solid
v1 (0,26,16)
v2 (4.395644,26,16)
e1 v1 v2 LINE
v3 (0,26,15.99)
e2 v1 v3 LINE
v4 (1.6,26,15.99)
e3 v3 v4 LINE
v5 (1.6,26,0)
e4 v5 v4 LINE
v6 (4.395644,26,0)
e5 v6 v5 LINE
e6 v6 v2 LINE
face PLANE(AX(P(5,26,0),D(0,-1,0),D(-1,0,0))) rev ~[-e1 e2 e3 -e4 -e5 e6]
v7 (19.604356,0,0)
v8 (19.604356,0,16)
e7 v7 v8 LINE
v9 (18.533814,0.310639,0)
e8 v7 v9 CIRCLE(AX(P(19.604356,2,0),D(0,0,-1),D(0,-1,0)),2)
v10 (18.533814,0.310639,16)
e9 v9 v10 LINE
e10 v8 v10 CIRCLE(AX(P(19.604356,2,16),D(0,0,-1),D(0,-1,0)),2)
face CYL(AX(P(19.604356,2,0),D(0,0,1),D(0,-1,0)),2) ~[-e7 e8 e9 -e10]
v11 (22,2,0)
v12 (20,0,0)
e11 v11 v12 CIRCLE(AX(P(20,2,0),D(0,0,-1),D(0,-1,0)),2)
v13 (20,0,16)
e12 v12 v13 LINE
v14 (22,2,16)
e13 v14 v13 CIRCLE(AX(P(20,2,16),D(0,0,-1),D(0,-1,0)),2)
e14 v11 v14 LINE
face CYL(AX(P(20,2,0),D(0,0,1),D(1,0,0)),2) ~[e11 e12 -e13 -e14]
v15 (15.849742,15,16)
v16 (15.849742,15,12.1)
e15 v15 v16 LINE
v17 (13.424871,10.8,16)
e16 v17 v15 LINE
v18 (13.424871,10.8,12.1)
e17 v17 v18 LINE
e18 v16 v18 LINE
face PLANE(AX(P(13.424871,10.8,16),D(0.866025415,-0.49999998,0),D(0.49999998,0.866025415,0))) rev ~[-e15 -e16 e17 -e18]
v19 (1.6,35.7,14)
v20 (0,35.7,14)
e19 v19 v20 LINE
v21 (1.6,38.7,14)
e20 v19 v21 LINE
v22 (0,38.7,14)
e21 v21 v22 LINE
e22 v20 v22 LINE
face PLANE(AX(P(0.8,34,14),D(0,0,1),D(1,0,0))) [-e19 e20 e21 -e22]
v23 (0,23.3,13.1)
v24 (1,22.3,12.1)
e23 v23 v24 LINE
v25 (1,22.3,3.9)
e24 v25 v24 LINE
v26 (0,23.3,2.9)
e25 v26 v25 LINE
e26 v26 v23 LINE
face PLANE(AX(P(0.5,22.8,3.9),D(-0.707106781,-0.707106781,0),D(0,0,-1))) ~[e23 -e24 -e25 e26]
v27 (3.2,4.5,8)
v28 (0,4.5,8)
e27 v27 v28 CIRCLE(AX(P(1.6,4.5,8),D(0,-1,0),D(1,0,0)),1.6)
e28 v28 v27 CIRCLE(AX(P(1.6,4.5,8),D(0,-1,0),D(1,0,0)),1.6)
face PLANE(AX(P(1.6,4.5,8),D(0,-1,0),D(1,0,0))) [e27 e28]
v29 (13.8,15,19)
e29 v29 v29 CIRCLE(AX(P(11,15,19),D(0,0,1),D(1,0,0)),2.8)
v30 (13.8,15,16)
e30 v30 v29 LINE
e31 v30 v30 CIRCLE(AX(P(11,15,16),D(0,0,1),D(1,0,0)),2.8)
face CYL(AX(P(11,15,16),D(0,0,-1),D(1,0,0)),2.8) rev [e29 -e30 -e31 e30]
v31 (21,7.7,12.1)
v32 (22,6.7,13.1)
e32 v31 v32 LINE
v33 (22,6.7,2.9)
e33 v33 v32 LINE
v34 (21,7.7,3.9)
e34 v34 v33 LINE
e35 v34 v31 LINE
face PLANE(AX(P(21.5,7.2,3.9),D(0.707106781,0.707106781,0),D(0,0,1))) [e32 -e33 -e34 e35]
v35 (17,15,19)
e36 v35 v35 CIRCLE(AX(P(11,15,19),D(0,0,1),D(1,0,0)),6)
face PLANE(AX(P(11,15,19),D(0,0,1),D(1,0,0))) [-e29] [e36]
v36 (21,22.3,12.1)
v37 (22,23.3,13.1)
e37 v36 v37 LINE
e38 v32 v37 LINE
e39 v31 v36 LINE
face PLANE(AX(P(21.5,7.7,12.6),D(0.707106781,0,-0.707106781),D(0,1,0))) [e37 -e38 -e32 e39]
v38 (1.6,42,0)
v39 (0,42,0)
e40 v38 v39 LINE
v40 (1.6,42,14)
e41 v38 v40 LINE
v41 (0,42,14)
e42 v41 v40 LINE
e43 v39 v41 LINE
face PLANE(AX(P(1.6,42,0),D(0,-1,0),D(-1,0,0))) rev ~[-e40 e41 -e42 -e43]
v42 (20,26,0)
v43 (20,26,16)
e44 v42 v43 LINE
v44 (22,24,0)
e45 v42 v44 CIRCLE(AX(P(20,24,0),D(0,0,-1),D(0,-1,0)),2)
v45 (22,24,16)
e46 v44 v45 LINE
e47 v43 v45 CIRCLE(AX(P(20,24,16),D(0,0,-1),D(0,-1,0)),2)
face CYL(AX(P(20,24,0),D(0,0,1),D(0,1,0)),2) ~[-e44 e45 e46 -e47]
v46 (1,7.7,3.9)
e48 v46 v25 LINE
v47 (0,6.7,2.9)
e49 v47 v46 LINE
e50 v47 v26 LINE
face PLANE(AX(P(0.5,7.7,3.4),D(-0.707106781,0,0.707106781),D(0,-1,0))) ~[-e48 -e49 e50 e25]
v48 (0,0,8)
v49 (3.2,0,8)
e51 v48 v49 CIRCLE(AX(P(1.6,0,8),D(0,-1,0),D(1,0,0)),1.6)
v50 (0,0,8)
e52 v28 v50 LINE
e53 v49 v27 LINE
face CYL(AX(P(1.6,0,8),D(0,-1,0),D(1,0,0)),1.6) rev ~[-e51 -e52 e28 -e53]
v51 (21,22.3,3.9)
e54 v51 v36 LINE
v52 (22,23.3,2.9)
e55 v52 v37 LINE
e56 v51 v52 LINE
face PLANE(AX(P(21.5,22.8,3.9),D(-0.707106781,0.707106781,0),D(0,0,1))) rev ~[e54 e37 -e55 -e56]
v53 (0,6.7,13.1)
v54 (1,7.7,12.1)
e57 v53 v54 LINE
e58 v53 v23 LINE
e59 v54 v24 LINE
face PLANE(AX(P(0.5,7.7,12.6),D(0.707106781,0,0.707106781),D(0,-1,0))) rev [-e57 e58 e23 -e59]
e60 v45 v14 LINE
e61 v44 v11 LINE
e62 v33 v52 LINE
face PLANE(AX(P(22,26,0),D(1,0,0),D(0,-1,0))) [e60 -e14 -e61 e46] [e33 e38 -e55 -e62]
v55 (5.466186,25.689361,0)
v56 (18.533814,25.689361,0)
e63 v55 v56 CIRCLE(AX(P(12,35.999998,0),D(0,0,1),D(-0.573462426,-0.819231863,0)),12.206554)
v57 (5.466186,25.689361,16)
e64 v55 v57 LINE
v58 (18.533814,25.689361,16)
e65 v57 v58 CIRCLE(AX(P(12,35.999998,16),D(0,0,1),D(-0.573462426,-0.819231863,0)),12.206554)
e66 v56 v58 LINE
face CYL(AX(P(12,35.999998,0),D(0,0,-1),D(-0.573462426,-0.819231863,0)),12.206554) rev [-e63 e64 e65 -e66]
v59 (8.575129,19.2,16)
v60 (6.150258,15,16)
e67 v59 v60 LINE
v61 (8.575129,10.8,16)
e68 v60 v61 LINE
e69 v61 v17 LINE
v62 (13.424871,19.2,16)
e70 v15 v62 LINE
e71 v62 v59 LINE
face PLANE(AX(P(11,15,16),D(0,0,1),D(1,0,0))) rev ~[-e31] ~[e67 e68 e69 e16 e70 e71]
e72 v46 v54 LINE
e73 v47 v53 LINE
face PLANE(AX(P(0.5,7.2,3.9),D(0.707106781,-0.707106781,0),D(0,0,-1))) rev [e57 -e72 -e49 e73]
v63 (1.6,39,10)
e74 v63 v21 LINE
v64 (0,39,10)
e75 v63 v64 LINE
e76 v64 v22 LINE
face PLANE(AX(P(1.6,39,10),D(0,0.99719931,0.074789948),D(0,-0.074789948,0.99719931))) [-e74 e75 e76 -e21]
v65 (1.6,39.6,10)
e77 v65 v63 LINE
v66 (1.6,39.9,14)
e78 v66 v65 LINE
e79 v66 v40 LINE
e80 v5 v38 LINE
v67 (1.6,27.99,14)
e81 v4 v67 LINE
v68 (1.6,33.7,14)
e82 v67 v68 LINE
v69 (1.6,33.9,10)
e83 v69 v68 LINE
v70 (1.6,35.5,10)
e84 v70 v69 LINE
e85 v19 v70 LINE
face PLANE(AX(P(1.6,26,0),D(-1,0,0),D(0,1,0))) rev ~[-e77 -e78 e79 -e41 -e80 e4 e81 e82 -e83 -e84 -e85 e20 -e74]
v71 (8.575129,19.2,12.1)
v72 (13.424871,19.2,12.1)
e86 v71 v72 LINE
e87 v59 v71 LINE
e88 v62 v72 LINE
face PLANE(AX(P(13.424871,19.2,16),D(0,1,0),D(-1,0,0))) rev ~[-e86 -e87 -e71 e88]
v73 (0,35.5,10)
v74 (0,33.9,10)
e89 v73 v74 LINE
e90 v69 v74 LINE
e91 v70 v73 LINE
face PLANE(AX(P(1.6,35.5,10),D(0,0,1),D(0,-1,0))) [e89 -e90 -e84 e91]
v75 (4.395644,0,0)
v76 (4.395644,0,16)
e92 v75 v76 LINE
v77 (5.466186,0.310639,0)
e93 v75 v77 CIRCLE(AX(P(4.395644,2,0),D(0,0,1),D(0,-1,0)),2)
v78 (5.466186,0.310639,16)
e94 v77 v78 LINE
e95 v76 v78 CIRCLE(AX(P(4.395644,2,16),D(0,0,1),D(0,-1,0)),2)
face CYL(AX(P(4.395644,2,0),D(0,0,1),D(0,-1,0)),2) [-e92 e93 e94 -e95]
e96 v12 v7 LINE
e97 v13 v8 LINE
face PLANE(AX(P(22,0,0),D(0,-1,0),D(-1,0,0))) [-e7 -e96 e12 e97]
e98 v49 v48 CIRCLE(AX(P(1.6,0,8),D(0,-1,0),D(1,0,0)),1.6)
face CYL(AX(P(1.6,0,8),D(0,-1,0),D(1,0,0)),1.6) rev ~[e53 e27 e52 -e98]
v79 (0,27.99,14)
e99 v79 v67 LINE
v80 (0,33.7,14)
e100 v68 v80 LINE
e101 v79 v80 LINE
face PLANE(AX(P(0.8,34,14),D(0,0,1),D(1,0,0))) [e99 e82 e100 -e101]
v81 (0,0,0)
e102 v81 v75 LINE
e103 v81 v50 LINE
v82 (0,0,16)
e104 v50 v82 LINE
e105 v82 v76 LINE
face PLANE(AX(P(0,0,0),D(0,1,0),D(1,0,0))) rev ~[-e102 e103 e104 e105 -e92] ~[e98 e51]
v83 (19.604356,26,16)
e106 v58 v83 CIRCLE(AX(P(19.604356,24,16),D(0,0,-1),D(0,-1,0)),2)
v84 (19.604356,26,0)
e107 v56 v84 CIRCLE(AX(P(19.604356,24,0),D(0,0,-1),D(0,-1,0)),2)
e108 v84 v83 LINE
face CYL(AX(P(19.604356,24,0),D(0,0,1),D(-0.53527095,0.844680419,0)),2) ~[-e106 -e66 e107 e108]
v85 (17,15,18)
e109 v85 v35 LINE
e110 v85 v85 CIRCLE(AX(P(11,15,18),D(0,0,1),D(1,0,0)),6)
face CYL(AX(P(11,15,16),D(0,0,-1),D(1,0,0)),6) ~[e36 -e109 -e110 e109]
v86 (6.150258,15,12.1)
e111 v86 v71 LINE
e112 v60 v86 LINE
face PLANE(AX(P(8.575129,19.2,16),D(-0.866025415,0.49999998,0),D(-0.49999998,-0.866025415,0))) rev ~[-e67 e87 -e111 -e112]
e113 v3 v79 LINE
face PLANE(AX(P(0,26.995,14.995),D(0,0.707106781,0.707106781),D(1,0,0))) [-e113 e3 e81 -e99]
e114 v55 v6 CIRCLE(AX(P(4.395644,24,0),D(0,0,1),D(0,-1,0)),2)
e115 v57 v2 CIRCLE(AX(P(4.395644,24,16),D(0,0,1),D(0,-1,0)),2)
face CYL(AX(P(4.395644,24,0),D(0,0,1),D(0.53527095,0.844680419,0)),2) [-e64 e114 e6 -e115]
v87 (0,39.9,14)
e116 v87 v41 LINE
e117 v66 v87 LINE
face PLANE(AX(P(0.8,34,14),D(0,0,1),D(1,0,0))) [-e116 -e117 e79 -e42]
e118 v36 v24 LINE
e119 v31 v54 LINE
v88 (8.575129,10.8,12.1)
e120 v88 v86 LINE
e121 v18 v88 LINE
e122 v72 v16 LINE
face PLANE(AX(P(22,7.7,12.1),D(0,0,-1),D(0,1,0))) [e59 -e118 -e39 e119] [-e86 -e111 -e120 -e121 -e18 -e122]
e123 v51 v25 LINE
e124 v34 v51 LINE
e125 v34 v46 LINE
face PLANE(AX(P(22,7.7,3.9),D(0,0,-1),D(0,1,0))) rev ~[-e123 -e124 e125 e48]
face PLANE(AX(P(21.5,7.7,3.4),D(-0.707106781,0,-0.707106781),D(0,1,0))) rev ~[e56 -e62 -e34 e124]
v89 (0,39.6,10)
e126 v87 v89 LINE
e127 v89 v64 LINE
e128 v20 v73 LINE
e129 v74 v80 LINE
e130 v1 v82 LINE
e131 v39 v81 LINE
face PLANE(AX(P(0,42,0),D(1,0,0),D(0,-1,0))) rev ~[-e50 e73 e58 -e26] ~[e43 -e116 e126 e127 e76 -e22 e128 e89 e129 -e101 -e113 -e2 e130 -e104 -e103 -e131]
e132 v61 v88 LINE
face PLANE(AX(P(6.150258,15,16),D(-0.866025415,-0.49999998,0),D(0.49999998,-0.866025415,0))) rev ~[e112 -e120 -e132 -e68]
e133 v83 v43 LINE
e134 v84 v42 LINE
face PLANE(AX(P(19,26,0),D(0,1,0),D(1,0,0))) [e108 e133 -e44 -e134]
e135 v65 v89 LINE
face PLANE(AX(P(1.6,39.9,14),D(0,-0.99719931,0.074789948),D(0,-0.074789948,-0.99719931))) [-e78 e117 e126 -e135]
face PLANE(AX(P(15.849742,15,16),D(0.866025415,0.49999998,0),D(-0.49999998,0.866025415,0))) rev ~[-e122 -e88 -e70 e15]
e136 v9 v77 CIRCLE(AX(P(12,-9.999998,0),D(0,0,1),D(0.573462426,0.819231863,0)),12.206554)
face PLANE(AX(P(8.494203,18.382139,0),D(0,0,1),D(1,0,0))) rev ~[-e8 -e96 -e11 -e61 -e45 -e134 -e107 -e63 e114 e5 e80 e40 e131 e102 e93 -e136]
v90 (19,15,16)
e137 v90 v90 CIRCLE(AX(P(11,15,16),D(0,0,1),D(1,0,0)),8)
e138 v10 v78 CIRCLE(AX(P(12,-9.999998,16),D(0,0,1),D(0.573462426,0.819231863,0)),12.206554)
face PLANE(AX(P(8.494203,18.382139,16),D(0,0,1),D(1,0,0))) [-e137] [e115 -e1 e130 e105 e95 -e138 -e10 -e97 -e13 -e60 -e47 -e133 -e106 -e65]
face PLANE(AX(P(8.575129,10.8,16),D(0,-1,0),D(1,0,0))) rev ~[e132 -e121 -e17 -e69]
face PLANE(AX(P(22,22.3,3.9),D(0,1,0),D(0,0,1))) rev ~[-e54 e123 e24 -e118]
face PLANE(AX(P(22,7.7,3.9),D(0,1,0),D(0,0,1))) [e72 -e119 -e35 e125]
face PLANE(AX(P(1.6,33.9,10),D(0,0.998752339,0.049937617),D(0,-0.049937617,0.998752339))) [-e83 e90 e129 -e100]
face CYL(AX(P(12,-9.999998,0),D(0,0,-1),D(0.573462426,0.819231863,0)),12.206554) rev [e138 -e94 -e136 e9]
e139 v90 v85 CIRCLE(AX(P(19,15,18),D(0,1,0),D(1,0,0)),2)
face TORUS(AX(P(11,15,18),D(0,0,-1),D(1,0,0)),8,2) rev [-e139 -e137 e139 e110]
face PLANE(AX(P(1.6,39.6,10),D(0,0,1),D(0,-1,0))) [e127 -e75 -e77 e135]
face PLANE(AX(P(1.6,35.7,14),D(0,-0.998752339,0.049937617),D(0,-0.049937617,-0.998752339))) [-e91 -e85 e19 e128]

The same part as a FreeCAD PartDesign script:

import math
import FreeCAD as App
import Part
import Sketcher
from FreeCAD import Vector
Q = App.Units.Quantity


def edges_at(feature, points):
    """Names of the edges that pass closest to the given points."""
    edges = feature.Shape.Edges
    near = lambda p: min(range(len(edges)), key=lambda i: edges[i].distToShape(Part.Vertex(*p))[0])
    return sorted({f"Edge{near(p) + 1}" for p in points})


def add_polygon(sketch, points):
    """Adds a closed chain of lines whose ends are joined by coincident constraints."""
    first, n = sketch.GeometryCount, len(points)
    for a, b in zip(points, points[1:] + points[:1]):
        sketch.addGeometry(Part.LineSegment(App.Vector(*a, 0), App.Vector(*b, 0)), False)
    for i in range(n):
        sketch.addConstraint(Sketcher.Constraint("Coincident", first + i, 2, first + (i + 1) % n, 1))

doc = App.newDocument("Part")
params = doc.addObject("Spreadsheet::Sheet", "Params")
for row, (alias, value) in enumerate([
    ("sketch1_width", "5 mm"),
    ("sketch1_width2", "3 mm"),
    ("sketch1_height", "16 mm"),
    ("sketch1_height2", "42 mm"),
    ("sketch1_width3", "3.4 mm"),
    ("pad1_length", "16 mm"),
    ("sketch2_width", "14.6 mm"),
    ("sketch2_height", "8.2 mm"),
    ("sketch3_height", "16 mm"),
    ("sketch3_width", "1.6 mm"),
    ("pocket2_length", "2 mm"),
    ("chamfer_size", "1.99 mm"),
    ("sketch4_width", "2 mm"),
    ("sketch4_width2", "1.6 mm"),
    ("sketch4_width3", "1.2 mm"),
    ("sketch4_width4", "0.6 mm"),
    ("sketch5_diameter", "12 mm"),
    ("sketch5_diameter2", "5.6 mm"),
    ("pad2_length", "3 mm"),
    ("pocket4_length", "7 mm"),
    ("fillet_radius", "2 mm"),
    ("fillet2_radius", "2 mm"),
    ("chamfer2_size", "1 mm"),
    ("chamfer3_size", "1 mm"),
    ("sketch7_diameter", "3.2 mm"),
    ("pocket5_length", "4.5 mm"),
], start=1):
    params.set(f"A{row}", alias)
    params.set(f"B{row}", "=" + value)
    params.setAlias(f"B{row}", alias)

body = doc.addObject("PartDesign::Body", "Body")

sketch1 = body.newObject("Sketcher::SketchObject", "Sketch")
sketch1.AttachmentSupport = (doc.getObject("XY_Plane"), [""])
sketch1.MapMode = "FlatFace"
sketch1.addGeometry([
    Part.LineSegment(Vector(5, 26, 0), Vector(1.6, 26, 0)),
    Part.LineSegment(Vector(1.6, 26, 0), Vector(1.6, 42, 0)),
    Part.LineSegment(Vector(1.6, 42, 0), Vector(0, 42, 0)),
    Part.LineSegment(Vector(0, 42, 0), Vector(0, 0, 0)),
    Part.LineSegment(Vector(0, 0, 0), Vector(5, 0, 0)),
    Part.ArcOfCircle(Part.Circle(Vector(12, -10, 0), Vector(0, 0, 1), 12.2), math.radians(55), math.radians(125)),
    Part.LineSegment(Vector(19, 0, 0), Vector(22, 0, 0)),
    Part.LineSegment(Vector(22, 0, 0), Vector(22, 26, 0)),
    Part.LineSegment(Vector(22, 26, 0), Vector(19, 26, 0)),
    Part.ArcOfCircle(Part.Circle(Vector(12, 36, 0), Vector(0, 0, 1), 12.2), math.radians(-125), math.radians(-55)),
], False)
sketch1.addConstraint([
    Sketcher.Constraint("Coincident", 0, 2, 1, 1),
    Sketcher.Constraint("Coincident", 1, 2, 2, 1),
    Sketcher.Constraint("Coincident", 2, 2, 3, 1),
    Sketcher.Constraint("Coincident", 3, 2, 4, 1),
    Sketcher.Constraint("Coincident", 4, 2, 5, 2),
    Sketcher.Constraint("Coincident", 5, 1, 6, 1),
    Sketcher.Constraint("Coincident", 6, 2, 7, 1),
    Sketcher.Constraint("Coincident", 7, 2, 8, 1),
    Sketcher.Constraint("Coincident", 8, 2, 9, 2),
    Sketcher.Constraint("Coincident", 9, 1, 0, 1),
    Sketcher.Constraint("Horizontal", 0),
    Sketcher.Constraint("Vertical", 1),
    Sketcher.Constraint("Horizontal", 2),
    Sketcher.Constraint("Vertical", 3),
    Sketcher.Constraint("Horizontal", 4),
    Sketcher.Constraint("Horizontal", 6),
    Sketcher.Constraint("Vertical", 7),
    Sketcher.Constraint("Horizontal", 8),
    Sketcher.Constraint("Coincident", 3, 2, -1, 1),
    Sketcher.Constraint("Equal", 5, 9),
    Sketcher.Constraint("PointOnObject", 5, 1, -1),
    Sketcher.Constraint("Horizontal", 0, 2, 7, 2),
    Sketcher.Constraint("Vertical", 5, 3, 9, 3),
    Sketcher.Constraint("Vertical", 5, 1, 8, 2),
    Sketcher.Constraint("DistanceX", 4, 1, 4, 2, Q("5 mm")),
    Sketcher.Constraint("DistanceX", 6, 1, 6, 2, Q("3 mm")),
    Sketcher.Constraint("DistanceY", 1, 1, 1, 2, Q("16 mm")),
    Sketcher.Constraint("DistanceY", 3, 2, 3, 1, Q("42 mm")),
    Sketcher.Constraint("DistanceX", 0, 2, 0, 1, Q("3.4 mm")),
    Sketcher.Constraint("DistanceX", -1, 1, 5, 3, Q("12 mm")),
    Sketcher.Constraint("Radius", 5, Q("12.206554 mm")),
])
sketch1.setExpression("Constraints[24]", "Params.sketch1_width")
sketch1.setExpression("Constraints[25]", "Params.sketch1_width2")
sketch1.setExpression("Constraints[26]", "Params.sketch1_height")
sketch1.setExpression("Constraints[27]", "Params.sketch1_height2")
sketch1.setExpression("Constraints[28]", "Params.sketch1_width3")
pad1 = body.newObject("PartDesign::Pad", "Pad")
pad1.Profile = sketch1
pad1.setExpression("Length", "Params.pad1_length")

sketch2 = body.newObject("Sketcher::SketchObject", "Sketch001")
sketch2.AttachmentSupport = (doc.getObject("YZ_Plane"), [""])
sketch2.MapMode = "FlatFace"
sketch2.AttachmentOffset = App.Placement(Vector(0, 0, 22), App.Rotation())
add_polygon(sketch2, [(8, 12), (8, 4), (22, 4), (22, 12)])
sketch2.addConstraint([
    Sketcher.Constraint("Vertical", 0),
    Sketcher.Constraint("Horizontal", 1),
    Sketcher.Constraint("Vertical", 2),
    Sketcher.Constraint("Horizontal", 3),
    Sketcher.Constraint("DistanceX", 1, 1, 1, 2, Q("14.6 mm")),
    Sketcher.Constraint("DistanceY", 0, 2, 0, 1, Q("8.2 mm")),
    Sketcher.Constraint("DistanceX", -1, 1, 0, 2, Q("7.7 mm")),
    Sketcher.Constraint("DistanceY", -1, 1, 0, 2, Q("3.9 mm")),
])
sketch2.setExpression("Constraints[8]", "Params.sketch2_width")
sketch2.setExpression("Constraints[9]", "Params.sketch2_height")
pocket1 = body.newObject("PartDesign::Pocket", "Pocket")
pocket1.Profile = sketch2
pocket1.Type = "ThroughAll"

sketch3 = body.newObject("Sketcher::SketchObject", "Sketch002")
sketch3.AttachmentSupport = (doc.getObject("XY_Plane"), [""])
sketch3.MapMode = "FlatFace"
sketch3.AttachmentOffset = App.Placement(Vector(0, 0, 16), App.Rotation())
add_polygon(sketch3, [(0, 42), (0, 26), (1.6, 26), (1.6, 42)])
sketch3.addConstraint([
    Sketcher.Constraint("Vertical", 0),
    Sketcher.Constraint("Horizontal", 1),
    Sketcher.Constraint("Vertical", 2),
    Sketcher.Constraint("Horizontal", 3),
    Sketcher.Constraint("PointOnObject", 0, 2, -2),
    Sketcher.Constraint("DistanceY", 0, 2, 0, 1, Q("16 mm")),
    Sketcher.Constraint("DistanceX", 1, 1, 1, 2, Q("1.6 mm")),
    Sketcher.Constraint("DistanceY", -1, 1, 0, 2, Q("26 mm")),
])
sketch3.setExpression("Constraints[9]", "Params.sketch3_height")
sketch3.setExpression("Constraints[10]", "Params.sketch3_width")
pocket2 = body.newObject("PartDesign::Pocket", "Pocket001")
pocket2.Profile = sketch3
pocket2.setExpression("Length", "Params.pocket2_length")
doc.recompute()

chamfer = body.newObject("PartDesign::Chamfer", "Chamfer")
chamfer.Base = (pocket2, edges_at(pocket2, [(0.8, 26, 14)]))
chamfer.setExpression("Size", "Params.chamfer_size")

sketch4 = body.newObject("Sketcher::SketchObject", "Sketch003")
sketch4.AttachmentSupport = (doc.getObject("YZ_Plane"), [""])
sketch4.MapMode = "FlatFace"
sketch4.AttachmentOffset = App.Placement(Vector(0, 0, 1.6), App.Rotation())
add_polygon(sketch4, [(35.7, 14), (33.7, 14), (33.9, 10), (35.5, 10)])
add_polygon(sketch4, [(39.9, 14), (38.7, 14), (39, 10), (39.6, 10)])
sketch4.addConstraint([
    Sketcher.Constraint("Horizontal", 0),
    Sketcher.Constraint("Horizontal", 2),
    Sketcher.Constraint("Horizontal", 4),
    Sketcher.Constraint("Horizontal", 6),
    Sketcher.Constraint("Horizontal", 3, 2, 4, 2),
    Sketcher.Constraint("Horizontal", 2, 2, 5, 2),
    Sketcher.Constraint("Equal", 1, 3),
    Sketcher.Constraint("Equal", 5, 7),
    Sketcher.Constraint("DistanceX", 0, 2, 0, 1, Q("2 mm")),
    Sketcher.Constraint("DistanceX", 2, 1, 2, 2, Q("1.6 mm")),
    Sketcher.Constraint("DistanceX", 4, 2, 4, 1, Q("1.2 mm")),
    Sketcher.Constraint("DistanceX", 6, 1, 6, 2, Q("0.6 mm")),
    Sketcher.Constraint("DistanceY", -1, 1, 0, 2, Q("14 mm")),
    Sketcher.Constraint("DistanceY", -1, 1, 1, 2, Q("10 mm")),
    Sketcher.Constraint("DistanceX", -1, 1, 5, 2, Q("39 mm")),
    Sketcher.Constraint("DistanceX", 3, 2, 4, 2, Q("3 mm")),
])
sketch4.setExpression("Constraints[16]", "Params.sketch4_width")
sketch4.setExpression("Constraints[17]", "Params.sketch4_width2")
sketch4.setExpression("Constraints[18]", "Params.sketch4_width3")
sketch4.setExpression("Constraints[19]", "Params.sketch4_width4")
pocket3 = body.newObject("PartDesign::Pocket", "Pocket002")
pocket3.Profile = sketch4
pocket3.Type = "ThroughAll"

sketch5 = body.newObject("Sketcher::SketchObject", "Sketch004")
sketch5.AttachmentSupport = (doc.getObject("XY_Plane"), [""])
sketch5.MapMode = "FlatFace"
sketch5.AttachmentOffset = App.Placement(Vector(0, 0, 16), App.Rotation())
sketch5.addGeometry([
    Part.Circle(Vector(11, 15, 0), Vector(0, 0, 1), 6),
    Part.Circle(Vector(11, 15, 0), Vector(0, 0, 1), 2.8),
], False)
sketch5.addConstraint([
    Sketcher.Constraint("Coincident", 1, 3, 0, 3),
    Sketcher.Constraint("Diameter", 0, Q("12 mm")),
    Sketcher.Constraint("Diameter", 1, Q("5.6 mm")),
    Sketcher.Constraint("DistanceX", -1, 1, 0, 3, Q("11 mm")),
    Sketcher.Constraint("DistanceY", -1, 1, 0, 3, Q("15 mm")),
])
sketch5.setExpression("Constraints[1]", "Params.sketch5_diameter")
sketch5.setExpression("Constraints[2]", "Params.sketch5_diameter2")
pad2 = body.newObject("PartDesign::Pad", "Pad001")
pad2.Profile = sketch5
pad2.setExpression("Length", "Params.pad2_length")

sketch6 = body.newObject("Sketcher::SketchObject", "Sketch005")
sketch6.AttachmentSupport = (doc.getObject("XY_Plane"), [""])
sketch6.MapMode = "FlatFace"
sketch6.AttachmentOffset = App.Placement(Vector(0, 0, 16), App.Rotation())
add_polygon(sketch6, [(15.8, 15), (13.4, 19.2), (8.6, 19.2), (6.2, 15), (8.6, 10.8), (13.4, 10.8)])
sketch6.addConstraint([
    Sketcher.Constraint("Horizontal", 1),
    Sketcher.Constraint("Horizontal", 4),
    Sketcher.Constraint("Parallel", 0, 3),
    Sketcher.Constraint("Parallel", 2, 5),
    Sketcher.Constraint("Horizontal", 2, 2, 5, 2),
    Sketcher.Constraint("Vertical", 1, 2, 3, 2),
    Sketcher.Constraint("Vertical", 0, 2, 4, 2),
    Sketcher.Constraint("Angle", 0, Q("119.999999 deg")),
    Sketcher.Constraint("DistanceY", -1, 1, 2, 2, Q("15 mm")),
    Sketcher.Constraint("DistanceY", -1, 1, 0, 2, Q("19.2 mm")),
    Sketcher.Constraint("DistanceX", 1, 2, 1, 1, Q("4.849742 mm")),
    Sketcher.Constraint("DistanceX", -1, 1, 0, 2, Q("13.424871 mm")),
])
pocket4 = body.newObject("PartDesign::Pocket", "Pocket003")
pocket4.Profile = sketch6
pocket4.setExpression("Length", "Params.pocket4_length")
doc.recompute()

fillet = body.newObject("PartDesign::Fillet", "Fillet")
fillet.Base = (pocket4, edges_at(pocket4, [(5, 15, 16)]))
fillet.setExpression("Radius", "Params.fillet_radius")
doc.recompute()

fillet2 = body.newObject("PartDesign::Fillet", "Fillet001")
fillet2.Base = (fillet, edges_at(fillet, [
    (22, 26, 8),
    (19, 26, 8),
    (5, 26, 8),
    (22, 0, 8),
    (19, 0, 8),
    (5, 0, 8),
]))
fillet2.setExpression("Radius", "Params.fillet2_radius")
doc.recompute()

chamfer2 = body.newObject("PartDesign::Chamfer", "Chamfer001")
chamfer2.Base = (fillet2, edges_at(fillet2, [
    (0, 15, 12.1),
    (0, 15, 3.9),
    (0, 7.7, 8),
    (0, 22.3, 8),
]))
chamfer2.setExpression("Size", "Params.chamfer2_size")
doc.recompute()

chamfer3 = body.newObject("PartDesign::Chamfer", "Chamfer002")
chamfer3.Base = (chamfer2, edges_at(chamfer2, [
    (22, 22.3, 8),
    (22, 15, 12.1),
    (22, 7.7, 8),
    (22, 15, 3.9),
]))
chamfer3.setExpression("Size", "Params.chamfer3_size")

sketch7 = body.newObject("Sketcher::SketchObject", "Sketch006")
sketch7.AttachmentSupport = (doc.getObject("XZ_Plane"), [""])
sketch7.MapMode = "FlatFace"
sketch7.addGeometry(Part.Circle(Vector(1.6, 8, 0), Vector(0, 0, 1), 1.6), False)
sketch7.addConstraint([
    Sketcher.Constraint("Diameter", 0, Q("3.2 mm")),
    Sketcher.Constraint("DistanceY", -1, 1, 0, 3, Q("8 mm")),
    Sketcher.Constraint("DistanceX", -1, 1, 0, 3, Q("1.6 mm")),
])
sketch7.setExpression("Constraints[0]", "Params.sketch7_diameter")
pocket5 = body.newObject("PartDesign::Pocket", "Pocket004")
pocket5.Profile = sketch7
pocket5.setExpression("Length", "Params.pocket5_length")

doc.recompute()
